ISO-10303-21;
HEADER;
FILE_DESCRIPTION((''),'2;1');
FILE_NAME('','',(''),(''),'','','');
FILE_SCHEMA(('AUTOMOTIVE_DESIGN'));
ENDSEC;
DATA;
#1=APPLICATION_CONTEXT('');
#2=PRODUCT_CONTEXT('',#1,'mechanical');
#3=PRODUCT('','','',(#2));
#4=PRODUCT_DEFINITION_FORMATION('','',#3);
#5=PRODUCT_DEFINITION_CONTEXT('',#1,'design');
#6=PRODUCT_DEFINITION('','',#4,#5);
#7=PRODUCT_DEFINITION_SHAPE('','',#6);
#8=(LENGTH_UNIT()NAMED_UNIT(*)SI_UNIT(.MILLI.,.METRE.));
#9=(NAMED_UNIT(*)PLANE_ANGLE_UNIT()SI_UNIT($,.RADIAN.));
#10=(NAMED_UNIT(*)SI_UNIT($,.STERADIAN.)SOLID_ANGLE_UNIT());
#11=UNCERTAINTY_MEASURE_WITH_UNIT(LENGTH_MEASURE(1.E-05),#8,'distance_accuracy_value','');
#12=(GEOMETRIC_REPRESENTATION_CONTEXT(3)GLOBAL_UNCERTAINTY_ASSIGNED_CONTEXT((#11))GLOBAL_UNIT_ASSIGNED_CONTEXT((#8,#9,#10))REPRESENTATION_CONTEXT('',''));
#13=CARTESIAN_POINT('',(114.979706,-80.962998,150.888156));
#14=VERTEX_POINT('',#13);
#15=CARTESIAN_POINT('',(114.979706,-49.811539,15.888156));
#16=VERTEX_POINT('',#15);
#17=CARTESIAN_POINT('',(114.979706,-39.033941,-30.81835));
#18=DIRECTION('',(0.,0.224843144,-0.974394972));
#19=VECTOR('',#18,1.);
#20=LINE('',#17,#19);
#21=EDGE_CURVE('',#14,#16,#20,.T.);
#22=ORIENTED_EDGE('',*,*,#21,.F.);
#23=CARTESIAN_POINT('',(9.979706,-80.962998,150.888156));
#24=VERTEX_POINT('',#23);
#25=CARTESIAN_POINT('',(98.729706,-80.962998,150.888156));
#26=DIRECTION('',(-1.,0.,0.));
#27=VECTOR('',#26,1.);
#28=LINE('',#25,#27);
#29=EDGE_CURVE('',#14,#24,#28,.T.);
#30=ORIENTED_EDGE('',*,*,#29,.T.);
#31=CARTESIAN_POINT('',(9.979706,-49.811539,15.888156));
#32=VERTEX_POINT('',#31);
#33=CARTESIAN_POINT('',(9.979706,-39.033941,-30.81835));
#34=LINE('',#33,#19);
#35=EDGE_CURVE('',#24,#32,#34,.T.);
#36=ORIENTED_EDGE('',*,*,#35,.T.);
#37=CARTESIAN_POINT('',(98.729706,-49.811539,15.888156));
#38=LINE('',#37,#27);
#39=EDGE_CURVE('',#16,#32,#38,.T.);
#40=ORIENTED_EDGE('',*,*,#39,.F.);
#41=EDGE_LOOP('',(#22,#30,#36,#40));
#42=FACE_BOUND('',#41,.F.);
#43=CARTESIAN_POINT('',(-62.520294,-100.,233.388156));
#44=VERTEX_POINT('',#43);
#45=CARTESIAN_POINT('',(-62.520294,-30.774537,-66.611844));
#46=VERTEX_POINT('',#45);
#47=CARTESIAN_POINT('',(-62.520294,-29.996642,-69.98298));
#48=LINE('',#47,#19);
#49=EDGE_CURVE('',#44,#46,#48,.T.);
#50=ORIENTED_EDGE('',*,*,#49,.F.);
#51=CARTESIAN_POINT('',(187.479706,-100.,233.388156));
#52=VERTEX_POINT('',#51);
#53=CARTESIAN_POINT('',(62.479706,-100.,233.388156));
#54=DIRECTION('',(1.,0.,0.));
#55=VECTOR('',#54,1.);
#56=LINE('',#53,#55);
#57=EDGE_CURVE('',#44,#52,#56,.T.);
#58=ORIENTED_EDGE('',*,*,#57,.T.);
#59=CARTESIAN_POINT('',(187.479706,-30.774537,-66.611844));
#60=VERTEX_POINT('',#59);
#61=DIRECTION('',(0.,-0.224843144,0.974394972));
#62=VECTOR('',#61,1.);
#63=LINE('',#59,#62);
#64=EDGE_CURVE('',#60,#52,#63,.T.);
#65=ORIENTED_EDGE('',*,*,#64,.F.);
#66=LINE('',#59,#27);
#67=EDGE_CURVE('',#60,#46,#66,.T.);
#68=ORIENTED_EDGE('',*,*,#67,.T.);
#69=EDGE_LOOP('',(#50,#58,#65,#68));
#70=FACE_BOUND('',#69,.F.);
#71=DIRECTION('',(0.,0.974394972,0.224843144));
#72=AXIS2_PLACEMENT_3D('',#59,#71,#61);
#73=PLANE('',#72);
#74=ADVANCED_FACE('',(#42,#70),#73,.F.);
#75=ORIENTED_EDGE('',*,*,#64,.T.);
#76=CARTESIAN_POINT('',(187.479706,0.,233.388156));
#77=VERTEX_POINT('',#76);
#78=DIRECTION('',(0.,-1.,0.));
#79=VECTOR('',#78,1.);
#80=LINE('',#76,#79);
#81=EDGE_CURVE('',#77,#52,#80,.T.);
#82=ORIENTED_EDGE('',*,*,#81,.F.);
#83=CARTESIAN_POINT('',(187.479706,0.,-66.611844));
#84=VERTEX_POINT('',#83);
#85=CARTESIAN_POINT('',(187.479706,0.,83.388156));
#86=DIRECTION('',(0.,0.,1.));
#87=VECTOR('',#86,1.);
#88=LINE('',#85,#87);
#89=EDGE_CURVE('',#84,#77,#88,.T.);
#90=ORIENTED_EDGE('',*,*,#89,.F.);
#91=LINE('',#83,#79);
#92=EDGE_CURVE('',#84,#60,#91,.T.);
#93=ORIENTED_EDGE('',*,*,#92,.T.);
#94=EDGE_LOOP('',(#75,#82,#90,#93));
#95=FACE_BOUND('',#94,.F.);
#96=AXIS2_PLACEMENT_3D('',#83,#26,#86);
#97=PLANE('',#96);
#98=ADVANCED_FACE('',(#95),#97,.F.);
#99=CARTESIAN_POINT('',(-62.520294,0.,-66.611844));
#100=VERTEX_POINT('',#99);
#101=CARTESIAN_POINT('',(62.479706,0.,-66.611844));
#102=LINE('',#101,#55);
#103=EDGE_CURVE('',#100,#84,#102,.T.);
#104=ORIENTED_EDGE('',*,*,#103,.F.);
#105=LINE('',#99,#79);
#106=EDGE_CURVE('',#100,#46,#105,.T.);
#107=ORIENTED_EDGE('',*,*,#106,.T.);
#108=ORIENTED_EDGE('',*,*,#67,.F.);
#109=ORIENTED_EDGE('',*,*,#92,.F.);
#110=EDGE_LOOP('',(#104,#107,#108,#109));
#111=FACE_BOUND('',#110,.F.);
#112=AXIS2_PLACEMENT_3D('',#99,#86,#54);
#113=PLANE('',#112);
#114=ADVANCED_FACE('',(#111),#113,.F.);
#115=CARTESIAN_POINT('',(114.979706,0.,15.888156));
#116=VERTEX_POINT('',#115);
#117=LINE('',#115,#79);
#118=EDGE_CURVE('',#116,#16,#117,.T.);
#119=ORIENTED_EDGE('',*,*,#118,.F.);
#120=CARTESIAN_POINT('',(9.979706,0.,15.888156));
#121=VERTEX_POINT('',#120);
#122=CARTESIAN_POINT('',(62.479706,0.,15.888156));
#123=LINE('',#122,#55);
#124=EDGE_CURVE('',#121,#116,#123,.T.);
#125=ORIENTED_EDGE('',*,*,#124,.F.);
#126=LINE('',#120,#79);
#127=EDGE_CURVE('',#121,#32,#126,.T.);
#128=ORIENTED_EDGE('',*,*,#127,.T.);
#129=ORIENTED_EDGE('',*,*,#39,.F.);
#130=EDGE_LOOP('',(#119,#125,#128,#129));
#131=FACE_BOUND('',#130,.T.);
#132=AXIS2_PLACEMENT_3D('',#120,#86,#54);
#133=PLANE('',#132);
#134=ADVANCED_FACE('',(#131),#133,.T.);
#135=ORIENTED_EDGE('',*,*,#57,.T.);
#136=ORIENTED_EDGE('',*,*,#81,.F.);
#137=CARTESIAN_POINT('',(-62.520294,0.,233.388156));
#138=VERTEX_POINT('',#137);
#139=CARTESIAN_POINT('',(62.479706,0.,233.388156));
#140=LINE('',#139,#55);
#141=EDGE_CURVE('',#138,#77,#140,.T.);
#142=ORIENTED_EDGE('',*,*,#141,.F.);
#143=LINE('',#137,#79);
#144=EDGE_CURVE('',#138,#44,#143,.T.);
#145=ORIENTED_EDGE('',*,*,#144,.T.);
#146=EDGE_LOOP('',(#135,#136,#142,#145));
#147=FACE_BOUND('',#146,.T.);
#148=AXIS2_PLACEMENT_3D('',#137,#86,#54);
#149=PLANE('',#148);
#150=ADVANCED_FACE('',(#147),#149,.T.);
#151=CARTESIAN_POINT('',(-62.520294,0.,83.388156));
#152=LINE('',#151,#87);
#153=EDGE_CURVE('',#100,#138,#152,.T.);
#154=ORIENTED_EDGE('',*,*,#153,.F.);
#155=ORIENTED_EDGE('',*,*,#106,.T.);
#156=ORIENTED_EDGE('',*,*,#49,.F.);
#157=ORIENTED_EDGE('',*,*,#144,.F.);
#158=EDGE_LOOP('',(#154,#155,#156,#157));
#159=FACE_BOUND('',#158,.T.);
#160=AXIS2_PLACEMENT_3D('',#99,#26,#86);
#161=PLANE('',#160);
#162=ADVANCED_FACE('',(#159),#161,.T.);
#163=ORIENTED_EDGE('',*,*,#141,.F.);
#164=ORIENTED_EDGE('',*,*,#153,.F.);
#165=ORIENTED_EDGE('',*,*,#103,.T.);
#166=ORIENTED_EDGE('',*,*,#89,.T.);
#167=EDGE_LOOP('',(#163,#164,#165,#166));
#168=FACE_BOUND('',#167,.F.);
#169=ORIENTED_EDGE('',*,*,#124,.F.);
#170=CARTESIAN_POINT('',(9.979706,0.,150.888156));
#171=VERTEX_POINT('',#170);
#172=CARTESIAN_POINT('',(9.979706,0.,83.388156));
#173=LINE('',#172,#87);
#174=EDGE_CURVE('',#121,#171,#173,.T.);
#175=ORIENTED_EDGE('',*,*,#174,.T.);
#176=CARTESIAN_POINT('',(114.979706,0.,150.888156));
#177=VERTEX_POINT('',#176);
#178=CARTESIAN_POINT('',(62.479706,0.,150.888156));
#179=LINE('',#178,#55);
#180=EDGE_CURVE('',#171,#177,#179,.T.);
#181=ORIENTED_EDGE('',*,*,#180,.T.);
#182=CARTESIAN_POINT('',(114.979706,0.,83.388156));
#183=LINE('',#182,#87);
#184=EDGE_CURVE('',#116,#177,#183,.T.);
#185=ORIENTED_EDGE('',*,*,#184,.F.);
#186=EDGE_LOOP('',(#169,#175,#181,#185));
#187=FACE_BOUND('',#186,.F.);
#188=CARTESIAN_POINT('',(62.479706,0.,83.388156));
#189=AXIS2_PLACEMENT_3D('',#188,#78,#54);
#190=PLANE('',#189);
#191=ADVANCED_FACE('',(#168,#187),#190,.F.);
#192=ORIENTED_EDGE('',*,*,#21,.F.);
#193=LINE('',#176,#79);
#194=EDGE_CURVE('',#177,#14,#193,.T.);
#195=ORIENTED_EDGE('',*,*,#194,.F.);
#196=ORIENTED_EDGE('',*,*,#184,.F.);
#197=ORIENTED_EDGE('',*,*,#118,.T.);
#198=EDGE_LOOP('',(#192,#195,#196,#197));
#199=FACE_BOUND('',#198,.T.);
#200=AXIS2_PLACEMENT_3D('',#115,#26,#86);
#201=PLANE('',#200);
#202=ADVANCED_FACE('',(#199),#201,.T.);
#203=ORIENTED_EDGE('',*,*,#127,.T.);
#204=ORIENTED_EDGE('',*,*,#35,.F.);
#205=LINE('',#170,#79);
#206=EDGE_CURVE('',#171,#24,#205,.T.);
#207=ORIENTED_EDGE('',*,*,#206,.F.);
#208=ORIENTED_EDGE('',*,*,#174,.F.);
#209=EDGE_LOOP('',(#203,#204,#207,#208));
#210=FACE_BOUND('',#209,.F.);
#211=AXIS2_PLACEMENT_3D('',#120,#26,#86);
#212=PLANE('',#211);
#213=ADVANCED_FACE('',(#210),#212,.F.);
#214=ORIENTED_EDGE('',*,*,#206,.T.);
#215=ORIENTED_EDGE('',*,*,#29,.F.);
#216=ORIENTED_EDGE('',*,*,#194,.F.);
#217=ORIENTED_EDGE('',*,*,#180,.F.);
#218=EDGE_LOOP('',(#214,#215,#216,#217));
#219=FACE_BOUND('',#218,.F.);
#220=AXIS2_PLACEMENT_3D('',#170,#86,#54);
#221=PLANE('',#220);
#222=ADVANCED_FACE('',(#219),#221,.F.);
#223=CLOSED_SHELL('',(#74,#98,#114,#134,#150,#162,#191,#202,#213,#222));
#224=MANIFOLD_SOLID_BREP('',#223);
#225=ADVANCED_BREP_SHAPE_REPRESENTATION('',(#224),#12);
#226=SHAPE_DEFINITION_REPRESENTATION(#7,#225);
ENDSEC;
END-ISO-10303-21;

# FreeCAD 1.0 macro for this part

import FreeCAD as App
import Part
import Sketcher

V = App.Vector

doc = App.newDocument("Part")
body = doc.addObject("PartDesign::Body", "Body")

sketch1 = body.newObject("Sketcher::SketchObject", "Sketch")
sketch1.AttachmentSupport = (doc.getObject("XZ_Plane"), [""])
sketch1.MapMode = "FlatFace"
sketch1.addGeometry([
    Part.LineSegment(V(-62.520294, 233.388156, 0), V(-62.520294, -66.611844, 0)),
    Part.LineSegment(V(-62.520294, -66.611844, 0), V(187.479706, -66.611844, 0)),
    Part.LineSegment(V(187.479706, -66.611844, 0), V(187.479706, 233.388156, 0)),
    Part.LineSegment(V(187.479706, 233.388156, 0), V(-62.520294, 233.388156, 0)),
    Part.LineSegment(V(114.979706, 15.888156, 0), V(9.979706, 15.888156, 0)),
    Part.LineSegment(V(9.979706, 15.888156, 0), V(9.979706, 150.888156, 0)),
    Part.LineSegment(V(9.979706, 150.888156, 0), V(114.979706, 150.888156, 0)),
    Part.LineSegment(V(114.979706, 150.888156, 0), V(114.979706, 15.888156, 0)),
], False)
sketch1.addConstraint([
    Sketcher.Constraint("Coincident", 0, 2, 1, 1),
    Sketcher.Constraint("Coincident", 1, 2, 2, 1),
    Sketcher.Constraint("Coincident", 2, 2, 3, 1),
    Sketcher.Constraint("Coincident", 3, 2, 0, 1),
    Sketcher.Constraint("Coincident", 4, 2, 5, 1),
    Sketcher.Constraint("Coincident", 5, 2, 6, 1),
    Sketcher.Constraint("Coincident", 6, 2, 7, 1),
    Sketcher.Constraint("Coincident", 7, 2, 4, 1),
    Sketcher.Constraint("Vertical", 0),
    Sketcher.Constraint("Horizontal", 1),
    Sketcher.Constraint("Vertical", 2),
    Sketcher.Constraint("Horizontal", 3),
    Sketcher.Constraint("Horizontal", 4),
    Sketcher.Constraint("Vertical", 5),
    Sketcher.Constraint("Horizontal", 6),
    Sketcher.Constraint("Vertical", 7),
    Sketcher.Constraint("DistanceX", 1, 1, 1, 2, 250.0),
    Sketcher.Constraint("DistanceX", 4, 2, 4, 1, 105.0),
    Sketcher.Constraint("DistanceY", 0, 2, 0, 1, 300.0),
    Sketcher.Constraint("DistanceY", 5, 1, 5, 2, 135.0),
    Sketcher.Constraint("DistanceX", 0, 2, 4, 2, 72.5),
    Sketcher.Constraint("DistanceY", 0, 2, 4, 2, 82.5),
    Sketcher.Constraint("DistanceX", 0, 2, -1, 1, 62.520294),
    Sketcher.Constraint("DistanceY", 0, 2, -1, 1, 66.611844),
])
pad1 = body.newObject("PartDesign::Pad", "Pad")
pad1.Profile = sketch1
pad1.Length = 100

sketch2 = body.newObject("Sketcher::SketchObject", "Sketch001")
sketch2.AttachmentSupport = (doc.getObject("YZ_Plane"), [""])
sketch2.MapMode = "FlatFace"
sketch2.AttachmentOffset = App.Placement(V(0, 0, 187.479706), App.Rotation())
sketch2.addGeometry([
    Part.LineSegment(V(-30.774537, -66.611844, 0), V(-100, 233.388156, 0)),
    Part.LineSegment(V(-100, 233.388156, 0), V(-100, -66.611844, 0)),
    Part.LineSegment(V(-100, -66.611844, 0), V(-30.774537, -66.611844, 0)),
], False)
sketch2.addConstraint([
    Sketcher.Constraint("Coincident", 0, 2, 1, 1),
    Sketcher.Constraint("Coincident", 1, 2, 2, 1),
    Sketcher.Constraint("Coincident", 2, 2, 0, 1),
    Sketcher.Constraint("Vertical", 1),
    Sketcher.Constraint("Horizontal", 2),
    Sketcher.Constraint("DistanceY", 1, 2, 1, 1, 300.0),
    Sketcher.Constraint("DistanceX", 0, 2, -1, 1, 100.0),
    Sketcher.Constraint("DistanceX", 2, 1, 2, 2, 69.225463),
    Sketcher.Constraint("DistanceY", -1, 1, 0, 2, 233.388156),
])
pocket1 = body.newObject("PartDesign::Pocket", "Pocket")
pocket1.Profile = sketch2
pocket1.Length = 297

doc.recompute()
